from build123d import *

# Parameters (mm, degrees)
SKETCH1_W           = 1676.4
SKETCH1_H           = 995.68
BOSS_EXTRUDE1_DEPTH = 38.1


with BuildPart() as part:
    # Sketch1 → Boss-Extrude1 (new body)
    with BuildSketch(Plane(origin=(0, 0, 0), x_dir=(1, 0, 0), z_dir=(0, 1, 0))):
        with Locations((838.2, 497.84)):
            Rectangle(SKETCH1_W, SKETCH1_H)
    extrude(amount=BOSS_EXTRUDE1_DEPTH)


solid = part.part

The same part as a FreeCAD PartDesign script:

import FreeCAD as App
import Part
import Sketcher
Q = App.Units.Quantity

doc = App.newDocument("Part")
params = doc.addObject("Spreadsheet::Sheet", "Params")
for row, (alias, value) in enumerate([
    ("sketch1_width", "66 in"),
    ("sketch1_height", "39.2 in"),
    ("pad1_length", "1.5 in"),
], start=1):
    params.set(f"A{row}", alias)
    params.set(f"B{row}", "=" + value)
    params.setAlias(f"B{row}", alias)

body = doc.addObject("PartDesign::Body", "Body")

# Sketch on XZ plane
sketch1 = body.newObject("Sketcher::SketchObject", "Sketch")
sketch1.AttachmentSupport = (doc.getObject("XZ_Plane"), [""])
sketch1.MapMode = "FlatFace"
sketch1.addGeometry([
    Part.LineSegment(App.Vector(0, -996, 0), App.Vector(0, 0, 0)),
    Part.LineSegment(App.Vector(0, 0, 0), App.Vector(1676, 0, 0)),
    Part.LineSegment(App.Vector(1676, 0, 0), App.Vector(1676, -996, 0)),
    Part.LineSegment(App.Vector(1676, -996, 0), App.Vector(0, -996, 0)),
], False)
sketch1.addConstraint([
    Sketcher.Constraint("Coincident", 0, 2, 1, 1),
    Sketcher.Constraint("Coincident", 1, 2, 2, 1),
    Sketcher.Constraint("Coincident", 2, 2, 3, 1),
    Sketcher.Constraint("Coincident", 3, 2, 0, 1),
    Sketcher.Constraint("Vertical", 0),
    Sketcher.Constraint("Horizontal", 1),
    Sketcher.Constraint("Vertical", 2),
    Sketcher.Constraint("Horizontal", 3),
    Sketcher.Constraint("Coincident", 0, 2, -1, 1),
    Sketcher.Constraint("DistanceX", 1, 1, 1, 2, Q("66 in")),
    Sketcher.Constraint("DistanceY", 0, 1, 0, 2, Q("39.2 in")),
])
sketch1.setExpression("Constraints[9]", "Params.sketch1_width")
sketch1.setExpression("Constraints[10]", "Params.sketch1_height")
pad1 = body.newObject("PartDesign::Pad", "Pad")
pad1.Profile = sketch1
pad1.setExpression("Length", "Params.pad1_length")
pad1.Reversed = True

doc.recompute()
